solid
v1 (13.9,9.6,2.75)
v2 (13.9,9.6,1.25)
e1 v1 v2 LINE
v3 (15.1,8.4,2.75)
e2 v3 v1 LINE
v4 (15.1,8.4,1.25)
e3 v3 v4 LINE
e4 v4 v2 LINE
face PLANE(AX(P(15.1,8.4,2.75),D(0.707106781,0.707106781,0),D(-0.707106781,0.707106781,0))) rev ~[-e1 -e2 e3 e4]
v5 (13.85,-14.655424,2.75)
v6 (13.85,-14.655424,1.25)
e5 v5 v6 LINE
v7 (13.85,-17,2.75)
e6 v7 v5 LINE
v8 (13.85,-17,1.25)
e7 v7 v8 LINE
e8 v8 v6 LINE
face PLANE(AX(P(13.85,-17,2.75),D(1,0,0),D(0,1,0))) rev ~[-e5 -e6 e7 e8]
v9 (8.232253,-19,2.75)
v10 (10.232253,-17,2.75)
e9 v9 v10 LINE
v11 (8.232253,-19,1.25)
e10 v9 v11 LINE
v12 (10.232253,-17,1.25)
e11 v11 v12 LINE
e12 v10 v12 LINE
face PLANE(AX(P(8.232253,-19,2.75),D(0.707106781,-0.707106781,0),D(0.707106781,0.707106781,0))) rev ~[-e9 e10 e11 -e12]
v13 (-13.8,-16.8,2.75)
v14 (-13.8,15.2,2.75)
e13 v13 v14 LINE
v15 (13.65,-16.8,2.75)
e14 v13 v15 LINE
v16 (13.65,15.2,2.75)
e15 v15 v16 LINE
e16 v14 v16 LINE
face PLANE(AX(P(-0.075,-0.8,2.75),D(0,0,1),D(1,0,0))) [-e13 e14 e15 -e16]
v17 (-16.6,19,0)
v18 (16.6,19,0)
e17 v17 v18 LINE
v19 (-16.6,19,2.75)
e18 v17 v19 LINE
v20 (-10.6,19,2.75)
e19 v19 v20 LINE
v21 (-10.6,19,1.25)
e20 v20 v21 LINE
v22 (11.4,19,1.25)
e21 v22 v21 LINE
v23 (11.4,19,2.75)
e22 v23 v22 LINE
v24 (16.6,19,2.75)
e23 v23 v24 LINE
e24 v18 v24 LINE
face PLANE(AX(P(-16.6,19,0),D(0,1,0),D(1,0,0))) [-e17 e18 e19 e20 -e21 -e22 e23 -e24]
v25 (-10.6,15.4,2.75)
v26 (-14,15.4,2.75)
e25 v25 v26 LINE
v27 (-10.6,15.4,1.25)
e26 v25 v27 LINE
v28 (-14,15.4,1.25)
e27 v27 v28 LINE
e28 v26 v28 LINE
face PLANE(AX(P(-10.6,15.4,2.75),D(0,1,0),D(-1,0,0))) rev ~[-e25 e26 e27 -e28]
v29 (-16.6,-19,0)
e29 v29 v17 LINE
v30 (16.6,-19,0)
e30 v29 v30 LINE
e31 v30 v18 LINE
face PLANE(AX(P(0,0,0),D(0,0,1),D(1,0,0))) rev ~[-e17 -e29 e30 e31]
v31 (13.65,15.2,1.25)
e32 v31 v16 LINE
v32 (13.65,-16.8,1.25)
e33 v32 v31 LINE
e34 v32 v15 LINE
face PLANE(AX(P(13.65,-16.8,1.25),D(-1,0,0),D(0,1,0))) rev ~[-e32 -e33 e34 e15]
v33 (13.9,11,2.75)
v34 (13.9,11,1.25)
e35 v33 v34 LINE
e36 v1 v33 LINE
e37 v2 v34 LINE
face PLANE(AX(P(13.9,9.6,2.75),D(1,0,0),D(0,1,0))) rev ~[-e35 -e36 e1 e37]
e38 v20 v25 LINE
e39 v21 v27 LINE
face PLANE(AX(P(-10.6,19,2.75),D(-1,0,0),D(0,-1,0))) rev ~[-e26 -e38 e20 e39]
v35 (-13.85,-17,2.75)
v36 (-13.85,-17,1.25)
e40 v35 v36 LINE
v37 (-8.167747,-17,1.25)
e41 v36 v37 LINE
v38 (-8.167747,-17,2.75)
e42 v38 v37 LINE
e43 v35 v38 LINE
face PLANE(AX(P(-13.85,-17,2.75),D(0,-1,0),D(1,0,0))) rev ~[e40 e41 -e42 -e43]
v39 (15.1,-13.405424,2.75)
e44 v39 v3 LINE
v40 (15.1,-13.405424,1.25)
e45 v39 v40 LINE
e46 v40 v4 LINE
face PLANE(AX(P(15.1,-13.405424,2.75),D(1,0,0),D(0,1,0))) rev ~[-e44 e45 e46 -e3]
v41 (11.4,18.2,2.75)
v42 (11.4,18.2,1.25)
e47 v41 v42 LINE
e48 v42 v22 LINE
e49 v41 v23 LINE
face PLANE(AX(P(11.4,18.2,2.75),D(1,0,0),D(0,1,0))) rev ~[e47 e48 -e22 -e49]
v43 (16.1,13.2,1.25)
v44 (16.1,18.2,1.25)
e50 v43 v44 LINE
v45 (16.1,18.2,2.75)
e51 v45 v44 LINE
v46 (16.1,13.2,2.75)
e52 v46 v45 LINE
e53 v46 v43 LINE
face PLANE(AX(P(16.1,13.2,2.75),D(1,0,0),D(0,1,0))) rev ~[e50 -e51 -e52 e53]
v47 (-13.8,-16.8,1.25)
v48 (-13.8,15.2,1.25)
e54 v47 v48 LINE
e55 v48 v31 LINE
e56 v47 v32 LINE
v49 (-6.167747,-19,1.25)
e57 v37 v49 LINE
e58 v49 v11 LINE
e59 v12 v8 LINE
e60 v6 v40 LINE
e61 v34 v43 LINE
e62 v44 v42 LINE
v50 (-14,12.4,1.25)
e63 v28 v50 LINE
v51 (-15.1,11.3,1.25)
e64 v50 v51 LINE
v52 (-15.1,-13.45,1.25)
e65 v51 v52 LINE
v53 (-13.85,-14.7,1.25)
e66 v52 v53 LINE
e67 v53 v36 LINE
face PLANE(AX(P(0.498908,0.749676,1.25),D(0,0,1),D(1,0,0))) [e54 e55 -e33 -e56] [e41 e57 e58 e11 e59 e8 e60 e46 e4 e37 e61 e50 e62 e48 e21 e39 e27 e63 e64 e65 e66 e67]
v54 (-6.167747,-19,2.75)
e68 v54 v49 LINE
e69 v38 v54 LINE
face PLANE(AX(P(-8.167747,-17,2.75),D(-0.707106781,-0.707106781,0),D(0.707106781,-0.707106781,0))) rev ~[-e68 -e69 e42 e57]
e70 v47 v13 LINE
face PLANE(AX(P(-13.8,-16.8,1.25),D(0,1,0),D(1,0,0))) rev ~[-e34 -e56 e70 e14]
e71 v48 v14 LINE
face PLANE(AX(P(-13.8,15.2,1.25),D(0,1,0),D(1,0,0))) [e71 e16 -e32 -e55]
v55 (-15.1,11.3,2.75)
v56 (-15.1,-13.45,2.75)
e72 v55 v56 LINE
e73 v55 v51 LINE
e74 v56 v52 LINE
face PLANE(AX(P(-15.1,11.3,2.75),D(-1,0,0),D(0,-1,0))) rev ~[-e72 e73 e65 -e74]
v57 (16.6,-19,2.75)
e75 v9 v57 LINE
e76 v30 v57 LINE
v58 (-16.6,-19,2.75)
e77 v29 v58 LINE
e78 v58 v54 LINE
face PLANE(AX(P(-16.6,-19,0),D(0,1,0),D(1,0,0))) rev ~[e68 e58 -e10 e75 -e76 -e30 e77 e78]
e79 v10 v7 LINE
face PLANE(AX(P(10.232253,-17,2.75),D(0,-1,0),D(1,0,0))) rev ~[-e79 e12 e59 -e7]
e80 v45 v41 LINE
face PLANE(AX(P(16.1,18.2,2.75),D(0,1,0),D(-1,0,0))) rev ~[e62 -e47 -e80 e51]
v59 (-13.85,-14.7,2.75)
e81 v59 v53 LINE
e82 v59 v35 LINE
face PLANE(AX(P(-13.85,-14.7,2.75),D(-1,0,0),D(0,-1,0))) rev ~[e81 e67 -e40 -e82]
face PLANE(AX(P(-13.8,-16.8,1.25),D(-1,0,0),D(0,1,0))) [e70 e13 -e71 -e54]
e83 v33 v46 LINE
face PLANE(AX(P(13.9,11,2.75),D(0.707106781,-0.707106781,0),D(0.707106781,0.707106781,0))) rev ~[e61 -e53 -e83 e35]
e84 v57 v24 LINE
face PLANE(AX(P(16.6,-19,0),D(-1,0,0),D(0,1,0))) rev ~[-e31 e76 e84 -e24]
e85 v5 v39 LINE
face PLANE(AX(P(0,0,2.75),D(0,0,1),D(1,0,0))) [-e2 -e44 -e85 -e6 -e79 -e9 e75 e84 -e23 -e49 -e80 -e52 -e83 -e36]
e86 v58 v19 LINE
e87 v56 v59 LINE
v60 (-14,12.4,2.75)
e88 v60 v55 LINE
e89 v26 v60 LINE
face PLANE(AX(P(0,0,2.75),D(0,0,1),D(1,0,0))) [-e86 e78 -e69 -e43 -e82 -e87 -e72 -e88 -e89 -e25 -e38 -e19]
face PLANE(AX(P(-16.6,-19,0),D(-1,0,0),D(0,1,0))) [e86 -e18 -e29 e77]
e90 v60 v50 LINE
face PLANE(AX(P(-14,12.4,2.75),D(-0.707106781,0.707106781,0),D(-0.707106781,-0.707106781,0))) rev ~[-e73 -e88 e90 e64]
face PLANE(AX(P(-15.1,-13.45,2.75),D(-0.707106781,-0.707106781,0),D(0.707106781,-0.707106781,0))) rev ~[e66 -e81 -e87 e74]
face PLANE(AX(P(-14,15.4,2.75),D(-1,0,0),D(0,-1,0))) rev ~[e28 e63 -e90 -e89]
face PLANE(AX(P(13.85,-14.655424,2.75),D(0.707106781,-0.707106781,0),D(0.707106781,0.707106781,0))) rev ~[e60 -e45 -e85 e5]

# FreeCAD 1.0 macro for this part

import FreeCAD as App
import Part
import Sketcher

doc = App.newDocument("Part")
params = doc.addObject("Spreadsheet::Sheet", "Params")
for row, (alias, value) in enumerate([
    ("sketch1_height", "38 mm"),
    ("sketch1_width", "33.2 mm"),
    ("pad1_length", "2.75 mm"),
    ("sketch2_width", "22 mm"),
    ("sketch2_height", "5 mm"),
    ("sketch2_height2", "3 mm"),
    ("sketch2_width2", "14.4 mm"),
    ("sketch2_width3", "4.7 mm"),
    ("pocket1_length", "1.5 mm"),
    ("sketch3_height", "32 mm"),
    ("sketch3_width", "27.45 mm"),
    ("pad2_length", "1.5 mm"),
], start=1):
    params.set(f"A{row}", alias)
    params.set(f"B{row}", "=" + value)
    params.setAlias(f"B{row}", alias)

body = doc.addObject("PartDesign::Body", "Body")

# Sketch on XY plane
sketch1 = body.newObject("Sketcher::SketchObject", "Sketch")
sketch1.AttachmentSupport = (doc.getObject("XY_Plane"), [""])
sketch1.MapMode = "FlatFace"
sketch1.addGeometry(Part.LineSegment(App.Vector(-17, 19, 0), App.Vector(-17, -19, 0)), False)
sketch1.addGeometry(Part.LineSegment(App.Vector(-17, -19, 0), App.Vector(17, -19, 0)), False)
sketch1.addGeometry(Part.LineSegment(App.Vector(17, -19, 0), App.Vector(17, 19, 0)), False)
sketch1.addGeometry(Part.LineSegment(App.Vector(17, 19, 0), App.Vector(-17, 19, 0)), False)
sketch1.addConstraint(Sketcher.Constraint("Coincident", 0, 2, 1, 1))
sketch1.addConstraint(Sketcher.Constraint("Coincident", 1, 2, 2, 1))
sketch1.addConstraint(Sketcher.Constraint("Coincident", 2, 2, 3, 1))
sketch1.addConstraint(Sketcher.Constraint("Coincident", 3, 2, 0, 1))
sketch1.addConstraint(Sketcher.Constraint("Vertical", 0))
sketch1.addConstraint(Sketcher.Constraint("Horizontal", 1))
sketch1.addConstraint(Sketcher.Constraint("Vertical", 2))
sketch1.addConstraint(Sketcher.Constraint("Horizontal", 3))
sketch1.addConstraint(Sketcher.Constraint("Symmetric", 0, 2, 2, 2, -1, 1))
sketch1.addConstraint(Sketcher.Constraint("DistanceY", 0, 2, 0, 1, 38.0))
sketch1.addConstraint(Sketcher.Constraint("DistanceX", 1, 1, 1, 2, 33.2))
sketch1.setExpression("Constraints[9]", "Params.sketch1_height")
sketch1.setExpression("Constraints[10]", "Params.sketch1_width")
pad1 = body.newObject("PartDesign::Pad", "Pad")
pad1.Profile = sketch1
pad1.setExpression("Length", "Params.pad1_length")

# Sketch on XY plane
sketch2 = body.newObject("Sketcher::SketchObject", "Sketch001")
sketch2.AttachmentSupport = (doc.getObject("XY_Plane"), [""])
sketch2.MapMode = "FlatFace"
sketch2.AttachmentOffset = App.Placement(App.Vector(0, 0, 2.75), App.Rotation())
sketch2.addGeometry(Part.LineSegment(App.Vector(-6.2, -19, 0), App.Vector(8.2, -19, 0)), False)
sketch2.addGeometry(Part.LineSegment(App.Vector(8.2, -19, 0), App.Vector(10.2, -17, 0)), False)
sketch2.addGeometry(Part.LineSegment(App.Vector(10.2, -17, 0), App.Vector(13.8, -17, 0)), False)
sketch2.addGeometry(Part.LineSegment(App.Vector(13.8, -17, 0), App.Vector(13.8, -14.7, 0)), False)
sketch2.addGeometry(Part.LineSegment(App.Vector(13.8, -14.7, 0), App.Vector(15.1, -13.4, 0)), False)
sketch2.addGeometry(Part.LineSegment(App.Vector(15.1, -13.4, 0), App.Vector(15.1, 8.4, 0)), False)
sketch2.addGeometry(Part.LineSegment(App.Vector(15.1, 8.4, 0), App.Vector(13.9, 9.6, 0)), False)
sketch2.addGeometry(Part.LineSegment(App.Vector(13.9, 9.6, 0), App.Vector(13.9, 11, 0)), False)
sketch2.addGeometry(Part.LineSegment(App.Vector(13.9, 11, 0), App.Vector(16.1, 13.2, 0)), False)
sketch2.addGeometry(Part.LineSegment(App.Vector(16.1, 13.2, 0), App.Vector(16.1, 18.2, 0)), False)
sketch2.addGeometry(Part.LineSegment(App.Vector(16.1, 18.2, 0), App.Vector(11.4, 18.2, 0)), False)
sketch2.addGeometry(Part.LineSegment(App.Vector(11.4, 18.2, 0), App.Vector(11.4, 19, 0)), False)
sketch2.addGeometry(Part.LineSegment(App.Vector(11.4, 19, 0), App.Vector(-10.6, 19, 0)), False)
sketch2.addGeometry(Part.LineSegment(App.Vector(-10.6, 19, 0), App.Vector(-10.6, 15.4, 0)), False)
sketch2.addGeometry(Part.LineSegment(App.Vector(-10.6, 15.4, 0), App.Vector(-14, 15.4, 0)), False)
sketch2.addGeometry(Part.LineSegment(App.Vector(-14, 15.4, 0), App.Vector(-14, 12.4, 0)), False)
sketch2.addGeometry(Part.LineSegment(App.Vector(-14, 12.4, 0), App.Vector(-15.1, 11.3, 0)), False)
sketch2.addGeometry(Part.LineSegment(App.Vector(-15.1, 11.3, 0), App.Vector(-15.1, -13.4, 0)), False)
sketch2.addGeometry(Part.LineSegment(App.Vector(-15.1, -13.4, 0), App.Vector(-13.8, -14.7, 0)), False)
sketch2.addGeometry(Part.LineSegment(App.Vector(-13.8, -14.7, 0), App.Vector(-13.8, -17, 0)), False)
sketch2.addGeometry(Part.LineSegment(App.Vector(-13.8, -17, 0), App.Vector(-8.2, -17, 0)), False)
sketch2.addGeometry(Part.LineSegment(App.Vector(-8.2, -17, 0), App.Vector(-6.2, -19, 0)), False)
sketch2.addConstraint(Sketcher.Constraint("Coincident", 0, 2, 1, 1))
sketch2.addConstraint(Sketcher.Constraint("Coincident", 1, 2, 2, 1))
sketch2.addConstraint(Sketcher.Constraint("Coincident", 2, 2, 3, 1))
sketch2.addConstraint(Sketcher.Constraint("Coincident", 3, 2, 4, 1))
sketch2.addConstraint(Sketcher.Constraint("Coincident", 4, 2, 5, 1))
sketch2.addConstraint(Sketcher.Constraint("Coincident", 5, 2, 6, 1))
sketch2.addConstraint(Sketcher.Constraint("Coincident", 6, 2, 7, 1))
sketch2.addConstraint(Sketcher.Constraint("Coincident", 7, 2, 8, 1))
sketch2.addConstraint(Sketcher.Constraint("Coincident", 8, 2, 9, 1))
sketch2.addConstraint(Sketcher.Constraint("Coincident", 9, 2, 10, 1))
sketch2.addConstraint(Sketcher.Constraint("Coincident", 10, 2, 11, 1))
sketch2.addConstraint(Sketcher.Constraint("Coincident", 11, 2, 12, 1))
sketch2.addConstraint(Sketcher.Constraint("Coincident", 12, 2, 13, 1))
sketch2.addConstraint(Sketcher.Constraint("Coincident", 13, 2, 14, 1))
sketch2.addConstraint(Sketcher.Constraint("Coincident", 14, 2, 15, 1))
sketch2.addConstraint(Sketcher.Constraint("Coincident", 15, 2, 16, 1))
sketch2.addConstraint(Sketcher.Constraint("Coincident", 16, 2, 17, 1))
sketch2.addConstraint(Sketcher.Constraint("Coincident", 17, 2, 18, 1))
sketch2.addConstraint(Sketcher.Constraint("Coincident", 18, 2, 19, 1))
sketch2.addConstraint(Sketcher.Constraint("Coincident", 19, 2, 20, 1))
sketch2.addConstraint(Sketcher.Constraint("Coincident", 20, 2, 21, 1))
sketch2.addConstraint(Sketcher.Constraint("Coincident", 21, 2, 0, 1))
sketch2.addConstraint(Sketcher.Constraint("Horizontal", 0))
sketch2.addConstraint(Sketcher.Constraint("Horizontal", 2))
sketch2.addConstraint(Sketcher.Constraint("Vertical", 3))
sketch2.addConstraint(Sketcher.Constraint("Vertical", 5))
sketch2.addConstraint(Sketcher.Constraint("Vertical", 7))
sketch2.addConstraint(Sketcher.Constraint("Vertical", 9))
sketch2.addConstraint(Sketcher.Constraint("Horizontal", 10))
sketch2.addConstraint(Sketcher.Constraint("Vertical", 11))
sketch2.addConstraint(Sketcher.Constraint("Horizontal", 12))
sketch2.addConstraint(Sketcher.Constraint("Vertical", 13))
sketch2.addConstraint(Sketcher.Constraint("Horizontal", 14))
sketch2.addConstraint(Sketcher.Constraint("Vertical", 15))
sketch2.addConstraint(Sketcher.Constraint("Vertical", 17))
sketch2.addConstraint(Sketcher.Constraint("Vertical", 19))
sketch2.addConstraint(Sketcher.Constraint("Horizontal", 20))
sketch2.addConstraint(Sketcher.Constraint("Symmetric", 2, 2, 19, 2, -2))
sketch2.addConstraint(Sketcher.Constraint("Parallel", 1, 4))
sketch2.addConstraint(Sketcher.Constraint("Perpendicular", 4, 6))
sketch2.addConstraint(Sketcher.Constraint("Perpendicular", 6, 8))
sketch2.addConstraint(Sketcher.Constraint("Parallel", 8, 16))
sketch2.addConstraint(Sketcher.Constraint("Perpendicular", 16, 18))
sketch2.addConstraint(Sketcher.Constraint("Parallel", 18, 21))
sketch2.addConstraint(Sketcher.Constraint("Equal", 4, 18))
sketch2.addConstraint(Sketcher.Constraint("Equal", 1, 21))
sketch2.addConstraint(Sketcher.Constraint("DistanceX", 12, 2, 12, 1, 22.0))
sketch2.addConstraint(Sketcher.Constraint("DistanceY", 9, 1, 9, 2, 5.0))
sketch2.addConstraint(Sketcher.Constraint("DistanceY", 15, 2, 15, 1, 3.0))
sketch2.addConstraint(Sketcher.Constraint("DistanceX", 0, 1, 0, 2, 14.4))
sketch2.addConstraint(Sketcher.Constraint("DistanceX", 10, 2, 10, 1, 4.7))
sketch2.addConstraint(Sketcher.Constraint("DistanceX", 14, 2, 14, 1, 3.4))
sketch2.addConstraint(Sketcher.Constraint("DistanceY", 7, 1, 7, 2, 1.4))
sketch2.addConstraint(Sketcher.Constraint("DistanceY", 11, 1, 11, 2, 0.8))
sketch2.addConstraint(Sketcher.Constraint("DistanceY", 13, 2, 13, 1, 3.6))
sketch2.addConstraint(Sketcher.Constraint("DistanceY", 19, 2, 19, 1, 2.3))
sketch2.addConstraint(Sketcher.Constraint("DistanceY", 0, 2, -1, 1, 19.0))
sketch2.addConstraint(Sketcher.Constraint("DistanceY", 1, 2, -1, 1, 17.0))
sketch2.addConstraint(Sketcher.Constraint("DistanceY", -1, 1, 7, 2, 11.0))
sketch2.addConstraint(Sketcher.Constraint("DistanceY", -1, 1, 11, 2, 19.0))
sketch2.addConstraint(Sketcher.Constraint("DistanceX", 14, 2, -1, 1, 14.0))
sketch2.addConstraint(Sketcher.Constraint("DistanceX", 5, 2, 8, 2, 1.0))
sketch2.addConstraint(Sketcher.Constraint("DistanceY", 17, 2, 17, 1, 24.75))
sketch2.addConstraint(Sketcher.Constraint("DistanceX", 2, 1, 2, 2, 3.617747))
sketch2.addConstraint(Sketcher.Constraint("DistanceY", 3, 1, 3, 2, 2.344576))
sketch2.setExpression("Constraints[46]", "Params.sketch2_width")
sketch2.setExpression("Constraints[47]", "Params.sketch2_height")
sketch2.setExpression("Constraints[48]", "Params.sketch2_height2")
sketch2.setExpression("Constraints[49]", "Params.sketch2_width2")
sketch2.setExpression("Constraints[50]", "Params.sketch2_width3")
pocket1 = body.newObject("PartDesign::Pocket", "Pocket")
pocket1.Profile = sketch2
pocket1.setExpression("Length", "Params.pocket1_length")

# Sketch on XY plane
sketch3 = body.newObject("Sketcher::SketchObject", "Sketch002")
sketch3.AttachmentSupport = (doc.getObject("XY_Plane"), [""])
sketch3.MapMode = "FlatFace"
sketch3.AttachmentOffset = App.Placement(App.Vector(0, 0, 1.25), App.Rotation())
sketch3.addGeometry(Part.LineSegment(App.Vector(-14, 15, 0), App.Vector(-14, -17, 0)), False)
sketch3.addGeometry(Part.LineSegment(App.Vector(-14, -17, 0), App.Vector(14, -17, 0)), False)
sketch3.addGeometry(Part.LineSegment(App.Vector(14, -17, 0), App.Vector(14, 15, 0)), False)
sketch3.addGeometry(Part.LineSegment(App.Vector(14, 15, 0), App.Vector(-14, 15, 0)), False)
sketch3.addConstraint(Sketcher.Constraint("Coincident", 0, 2, 1, 1))
sketch3.addConstraint(Sketcher.Constraint("Coincident", 1, 2, 2, 1))
sketch3.addConstraint(Sketcher.Constraint("Coincident", 2, 2, 3, 1))
sketch3.addConstraint(Sketcher.Constraint("Coincident", 3, 2, 0, 1))
sketch3.addConstraint(Sketcher.Constraint("Vertical", 0))
sketch3.addConstraint(Sketcher.Constraint("Horizontal", 1))
sketch3.addConstraint(Sketcher.Constraint("Vertical", 2))
sketch3.addConstraint(Sketcher.Constraint("Horizontal", 3))
sketch3.addConstraint(Sketcher.Constraint("DistanceY", 0, 2, 0, 1, 32.0))
sketch3.addConstraint(Sketcher.Constraint("DistanceX", 1, 1, 1, 2, 27.45))
sketch3.addConstraint(Sketcher.Constraint("DistanceX", 0, 2, -1, 1, 13.8))
sketch3.addConstraint(Sketcher.Constraint("DistanceY", 0, 2, -1, 1, 16.8))
sketch3.setExpression("Constraints[8]", "Params.sketch3_height")
sketch3.setExpression("Constraints[9]", "Params.sketch3_width")
pad2 = body.newObject("PartDesign::Pad", "Pad001")
pad2.Profile = sketch3
pad2.setExpression("Length", "Params.pad2_length")

doc.recompute()
